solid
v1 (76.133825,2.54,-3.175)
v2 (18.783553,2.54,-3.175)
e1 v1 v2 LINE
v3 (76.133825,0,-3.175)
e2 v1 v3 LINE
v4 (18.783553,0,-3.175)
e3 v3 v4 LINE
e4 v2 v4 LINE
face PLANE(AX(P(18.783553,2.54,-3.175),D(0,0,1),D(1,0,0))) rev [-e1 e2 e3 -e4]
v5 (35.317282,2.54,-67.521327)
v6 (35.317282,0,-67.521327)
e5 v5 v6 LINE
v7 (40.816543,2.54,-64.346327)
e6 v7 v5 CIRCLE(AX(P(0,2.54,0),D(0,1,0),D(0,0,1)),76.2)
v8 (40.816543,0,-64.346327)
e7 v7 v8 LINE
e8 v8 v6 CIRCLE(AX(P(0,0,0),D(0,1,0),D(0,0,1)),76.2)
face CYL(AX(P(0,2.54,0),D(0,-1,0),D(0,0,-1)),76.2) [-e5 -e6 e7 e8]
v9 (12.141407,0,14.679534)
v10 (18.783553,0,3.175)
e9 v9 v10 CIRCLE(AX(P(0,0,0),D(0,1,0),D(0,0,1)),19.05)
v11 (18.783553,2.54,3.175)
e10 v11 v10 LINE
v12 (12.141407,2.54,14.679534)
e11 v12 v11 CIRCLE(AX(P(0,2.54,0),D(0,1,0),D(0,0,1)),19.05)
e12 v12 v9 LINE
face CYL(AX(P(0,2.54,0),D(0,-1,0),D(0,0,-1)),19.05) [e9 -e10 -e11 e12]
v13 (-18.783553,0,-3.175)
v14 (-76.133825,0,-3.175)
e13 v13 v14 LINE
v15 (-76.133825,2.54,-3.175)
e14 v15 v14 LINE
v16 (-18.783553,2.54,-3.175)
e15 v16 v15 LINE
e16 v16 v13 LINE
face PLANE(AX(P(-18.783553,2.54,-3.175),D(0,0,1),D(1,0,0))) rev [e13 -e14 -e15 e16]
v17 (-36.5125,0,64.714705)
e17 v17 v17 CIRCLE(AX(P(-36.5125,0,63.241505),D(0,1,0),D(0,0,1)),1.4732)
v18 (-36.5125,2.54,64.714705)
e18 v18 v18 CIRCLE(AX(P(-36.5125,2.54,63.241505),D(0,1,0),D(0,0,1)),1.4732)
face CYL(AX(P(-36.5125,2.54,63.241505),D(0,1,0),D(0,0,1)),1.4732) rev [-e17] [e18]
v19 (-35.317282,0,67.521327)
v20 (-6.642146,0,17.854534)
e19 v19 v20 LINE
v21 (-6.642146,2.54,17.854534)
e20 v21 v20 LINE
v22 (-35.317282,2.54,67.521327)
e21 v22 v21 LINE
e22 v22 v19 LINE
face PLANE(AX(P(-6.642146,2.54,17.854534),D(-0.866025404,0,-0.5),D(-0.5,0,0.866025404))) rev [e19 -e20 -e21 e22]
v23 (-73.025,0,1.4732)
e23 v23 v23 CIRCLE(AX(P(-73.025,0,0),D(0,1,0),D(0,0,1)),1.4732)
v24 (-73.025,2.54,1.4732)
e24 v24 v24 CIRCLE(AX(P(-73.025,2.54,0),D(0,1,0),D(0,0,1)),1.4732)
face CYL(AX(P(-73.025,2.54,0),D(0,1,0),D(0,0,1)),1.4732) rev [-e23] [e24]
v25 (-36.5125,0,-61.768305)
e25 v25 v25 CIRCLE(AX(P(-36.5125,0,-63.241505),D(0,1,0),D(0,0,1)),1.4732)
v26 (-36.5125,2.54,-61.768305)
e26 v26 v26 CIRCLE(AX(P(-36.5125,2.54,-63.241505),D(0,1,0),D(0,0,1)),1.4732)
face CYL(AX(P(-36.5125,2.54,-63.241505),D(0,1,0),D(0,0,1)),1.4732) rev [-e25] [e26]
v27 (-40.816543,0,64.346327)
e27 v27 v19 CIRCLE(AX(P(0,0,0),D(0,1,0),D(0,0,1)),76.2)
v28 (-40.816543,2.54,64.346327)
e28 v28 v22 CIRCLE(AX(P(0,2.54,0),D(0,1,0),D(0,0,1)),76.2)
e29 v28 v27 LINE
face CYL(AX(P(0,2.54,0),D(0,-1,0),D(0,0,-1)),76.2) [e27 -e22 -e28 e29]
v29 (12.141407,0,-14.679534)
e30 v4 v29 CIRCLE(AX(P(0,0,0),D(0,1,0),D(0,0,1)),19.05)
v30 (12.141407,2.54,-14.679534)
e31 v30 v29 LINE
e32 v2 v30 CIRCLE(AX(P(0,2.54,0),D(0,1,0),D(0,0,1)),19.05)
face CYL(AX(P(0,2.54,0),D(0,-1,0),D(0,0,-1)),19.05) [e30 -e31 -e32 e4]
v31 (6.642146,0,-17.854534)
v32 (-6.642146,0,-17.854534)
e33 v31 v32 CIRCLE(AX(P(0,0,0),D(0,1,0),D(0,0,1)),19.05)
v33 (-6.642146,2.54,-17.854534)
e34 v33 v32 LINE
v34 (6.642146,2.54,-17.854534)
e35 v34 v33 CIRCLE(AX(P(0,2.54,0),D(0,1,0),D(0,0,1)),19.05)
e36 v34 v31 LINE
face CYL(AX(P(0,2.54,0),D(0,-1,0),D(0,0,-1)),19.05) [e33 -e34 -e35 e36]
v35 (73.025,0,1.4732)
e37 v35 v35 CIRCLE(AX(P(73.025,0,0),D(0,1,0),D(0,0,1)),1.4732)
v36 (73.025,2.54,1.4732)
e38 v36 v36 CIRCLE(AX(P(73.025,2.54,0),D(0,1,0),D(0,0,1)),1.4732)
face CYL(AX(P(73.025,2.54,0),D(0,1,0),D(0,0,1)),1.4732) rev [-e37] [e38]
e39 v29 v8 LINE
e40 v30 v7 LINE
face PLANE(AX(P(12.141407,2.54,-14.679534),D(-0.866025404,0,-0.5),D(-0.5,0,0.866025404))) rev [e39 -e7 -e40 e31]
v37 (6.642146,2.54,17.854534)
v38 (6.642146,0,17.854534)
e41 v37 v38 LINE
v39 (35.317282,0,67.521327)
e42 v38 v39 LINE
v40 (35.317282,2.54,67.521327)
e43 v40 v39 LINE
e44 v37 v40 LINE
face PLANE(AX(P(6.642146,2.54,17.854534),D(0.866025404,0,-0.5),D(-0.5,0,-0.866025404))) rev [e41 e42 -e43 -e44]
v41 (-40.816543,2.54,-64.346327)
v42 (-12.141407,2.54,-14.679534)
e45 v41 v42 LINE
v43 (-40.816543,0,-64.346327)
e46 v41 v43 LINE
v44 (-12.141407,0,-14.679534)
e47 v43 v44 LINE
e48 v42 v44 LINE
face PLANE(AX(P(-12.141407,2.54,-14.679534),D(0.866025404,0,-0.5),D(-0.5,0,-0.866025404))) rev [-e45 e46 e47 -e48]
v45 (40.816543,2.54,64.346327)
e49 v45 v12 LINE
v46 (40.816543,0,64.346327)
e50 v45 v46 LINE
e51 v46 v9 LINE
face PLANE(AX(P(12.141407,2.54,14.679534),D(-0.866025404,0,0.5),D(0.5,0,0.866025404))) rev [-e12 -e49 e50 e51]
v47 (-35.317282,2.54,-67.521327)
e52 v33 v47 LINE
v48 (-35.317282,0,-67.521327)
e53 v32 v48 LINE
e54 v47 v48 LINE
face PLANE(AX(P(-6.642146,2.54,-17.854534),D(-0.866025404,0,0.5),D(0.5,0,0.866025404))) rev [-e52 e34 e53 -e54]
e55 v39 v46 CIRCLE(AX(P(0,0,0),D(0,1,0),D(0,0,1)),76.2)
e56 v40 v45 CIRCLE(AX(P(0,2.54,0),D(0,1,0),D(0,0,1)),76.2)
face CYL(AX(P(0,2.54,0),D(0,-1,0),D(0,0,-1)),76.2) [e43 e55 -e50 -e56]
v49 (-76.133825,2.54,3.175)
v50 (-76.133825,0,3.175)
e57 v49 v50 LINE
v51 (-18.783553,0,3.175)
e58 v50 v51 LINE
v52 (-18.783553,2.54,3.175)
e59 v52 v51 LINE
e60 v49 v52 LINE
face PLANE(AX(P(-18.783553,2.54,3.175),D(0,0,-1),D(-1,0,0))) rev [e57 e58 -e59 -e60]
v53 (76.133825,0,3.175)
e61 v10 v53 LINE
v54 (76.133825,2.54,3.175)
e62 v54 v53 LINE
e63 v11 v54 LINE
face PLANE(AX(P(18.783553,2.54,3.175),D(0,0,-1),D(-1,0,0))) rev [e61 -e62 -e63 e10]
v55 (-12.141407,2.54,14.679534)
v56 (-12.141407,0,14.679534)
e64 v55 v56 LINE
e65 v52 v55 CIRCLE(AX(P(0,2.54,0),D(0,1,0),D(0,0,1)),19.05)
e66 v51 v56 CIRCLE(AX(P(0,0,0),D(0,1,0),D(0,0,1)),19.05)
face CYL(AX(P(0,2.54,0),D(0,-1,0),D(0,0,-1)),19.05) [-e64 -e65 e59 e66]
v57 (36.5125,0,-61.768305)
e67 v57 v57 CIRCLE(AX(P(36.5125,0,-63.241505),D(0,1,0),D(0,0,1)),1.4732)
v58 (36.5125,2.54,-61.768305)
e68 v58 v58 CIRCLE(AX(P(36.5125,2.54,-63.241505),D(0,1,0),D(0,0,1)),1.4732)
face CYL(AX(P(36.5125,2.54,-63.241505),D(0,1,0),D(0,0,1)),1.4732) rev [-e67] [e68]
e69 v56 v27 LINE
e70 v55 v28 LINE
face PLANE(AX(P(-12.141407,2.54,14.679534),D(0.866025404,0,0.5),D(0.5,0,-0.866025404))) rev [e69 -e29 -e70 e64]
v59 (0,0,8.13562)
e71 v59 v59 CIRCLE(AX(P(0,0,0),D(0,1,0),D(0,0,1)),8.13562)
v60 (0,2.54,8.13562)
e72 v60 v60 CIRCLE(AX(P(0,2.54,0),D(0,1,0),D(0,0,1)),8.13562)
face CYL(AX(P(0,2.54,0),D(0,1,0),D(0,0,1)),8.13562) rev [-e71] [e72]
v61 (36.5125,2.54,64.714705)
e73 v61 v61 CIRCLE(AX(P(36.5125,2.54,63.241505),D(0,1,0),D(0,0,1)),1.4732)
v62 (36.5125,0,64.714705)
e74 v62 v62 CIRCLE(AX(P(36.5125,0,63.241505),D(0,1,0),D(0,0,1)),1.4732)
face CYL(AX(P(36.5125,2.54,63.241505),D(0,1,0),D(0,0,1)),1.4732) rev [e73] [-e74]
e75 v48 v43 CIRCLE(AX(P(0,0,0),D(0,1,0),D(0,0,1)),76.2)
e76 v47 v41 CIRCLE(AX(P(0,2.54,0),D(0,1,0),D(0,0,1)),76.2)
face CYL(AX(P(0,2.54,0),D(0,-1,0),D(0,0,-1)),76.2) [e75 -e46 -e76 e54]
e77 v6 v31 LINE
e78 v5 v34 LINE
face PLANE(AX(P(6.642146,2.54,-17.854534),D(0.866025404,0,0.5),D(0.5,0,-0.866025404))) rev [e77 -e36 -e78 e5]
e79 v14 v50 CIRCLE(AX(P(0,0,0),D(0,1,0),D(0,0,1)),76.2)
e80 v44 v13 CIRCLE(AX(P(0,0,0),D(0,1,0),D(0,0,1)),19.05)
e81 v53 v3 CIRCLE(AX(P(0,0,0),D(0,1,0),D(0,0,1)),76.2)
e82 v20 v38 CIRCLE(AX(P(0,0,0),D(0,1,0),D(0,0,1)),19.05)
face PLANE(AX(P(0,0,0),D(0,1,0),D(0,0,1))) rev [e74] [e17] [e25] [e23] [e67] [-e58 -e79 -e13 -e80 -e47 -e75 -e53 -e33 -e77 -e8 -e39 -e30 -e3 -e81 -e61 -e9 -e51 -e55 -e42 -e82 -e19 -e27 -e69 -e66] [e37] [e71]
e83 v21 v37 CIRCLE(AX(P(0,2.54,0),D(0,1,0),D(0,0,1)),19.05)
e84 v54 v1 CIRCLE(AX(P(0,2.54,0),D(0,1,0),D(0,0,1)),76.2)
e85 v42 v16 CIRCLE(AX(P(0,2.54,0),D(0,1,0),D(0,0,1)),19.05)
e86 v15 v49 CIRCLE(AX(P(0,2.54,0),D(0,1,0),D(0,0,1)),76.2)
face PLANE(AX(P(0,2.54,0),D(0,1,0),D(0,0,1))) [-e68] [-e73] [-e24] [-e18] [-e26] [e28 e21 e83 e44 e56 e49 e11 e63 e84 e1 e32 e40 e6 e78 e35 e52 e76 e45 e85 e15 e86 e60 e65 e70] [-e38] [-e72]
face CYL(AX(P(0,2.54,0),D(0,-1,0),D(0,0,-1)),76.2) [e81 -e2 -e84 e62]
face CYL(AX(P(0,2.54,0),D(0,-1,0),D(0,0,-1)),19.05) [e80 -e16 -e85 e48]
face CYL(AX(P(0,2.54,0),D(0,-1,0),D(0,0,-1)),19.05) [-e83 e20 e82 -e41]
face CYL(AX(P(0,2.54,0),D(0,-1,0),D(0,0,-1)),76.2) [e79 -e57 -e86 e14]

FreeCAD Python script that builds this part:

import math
import FreeCAD as App
import Part
import Sketcher

V = App.Vector
Q = App.Units.Quantity

doc = App.newDocument("Part")
body = doc.addObject("PartDesign::Body", "Body")

# Sketch on XZ plane
sketch1 = body.newObject("Sketcher::SketchObject", "Sketch")
sketch1.AttachmentSupport = (doc.getObject("XZ_Plane"), [""])
sketch1.MapMode = "FlatFace"
sketch1.addGeometry(Part.LineSegment(V(76, -3, 0), V(19, -3, 0)), False)
sketch1.addGeometry(Part.ArcOfCircle(Part.Circle(V(0, 0, 0), V(0, 0, 1), 19), math.radians(-50), math.radians(-10)), False)
sketch1.addGeometry(Part.LineSegment(V(12, -15, 0), V(41, -64, 0)), False)
sketch1.addGeometry(Part.ArcOfCircle(Part.Circle(V(0, 0, 0), V(0, 0, 1), 76), math.radians(-62.39), math.radians(-57.61)), False)
sketch1.addGeometry(Part.LineSegment(V(35, -68, 0), V(7, -18, 0)), False)
sketch1.addGeometry(Part.ArcOfCircle(Part.Circle(V(0, 0, 0), V(0, 0, 1), 19), math.radians(-110), math.radians(-70)), False)
sketch1.addGeometry(Part.LineSegment(V(-7, -18, 0), V(-35, -68, 0)), False)
sketch1.addGeometry(Part.ArcOfCircle(Part.Circle(V(0, 0, 0), V(0, 0, 1), 76), math.radians(-122.39), math.radians(-117.61)), False)
sketch1.addGeometry(Part.LineSegment(V(-41, -64, 0), V(-12, -15, 0)), False)
sketch1.addGeometry(Part.ArcOfCircle(Part.Circle(V(0, 0, 0), V(0, 0, 1), 19), math.radians(-170), math.radians(-130)), False)
sketch1.addGeometry(Part.LineSegment(V(-19, -3, 0), V(-76, -3, 0)), False)
sketch1.addGeometry(Part.ArcOfCircle(Part.Circle(V(0, 0, 0), V(0, 0, 1), 76), math.radians(177.61), math.radians(182.39)), False)
sketch1.addGeometry(Part.LineSegment(V(-76, 3, 0), V(-19, 3, 0)), False)
sketch1.addGeometry(Part.ArcOfCircle(Part.Circle(V(0, 0, 0), V(0, 0, 1), 19), math.radians(130), math.radians(170)), False)
sketch1.addGeometry(Part.LineSegment(V(-12, 15, 0), V(-41, 64, 0)), False)
sketch1.addGeometry(Part.ArcOfCircle(Part.Circle(V(0, 0, 0), V(0, 0, 1), 76), math.radians(117.61), math.radians(122.39)), False)
sketch1.addGeometry(Part.LineSegment(V(-35, 68, 0), V(-7, 18, 0)), False)
sketch1.addGeometry(Part.ArcOfCircle(Part.Circle(V(0, 0, 0), V(0, 0, 1), 19), math.radians(70), math.radians(110)), False)
sketch1.addGeometry(Part.LineSegment(V(7, 18, 0), V(35, 68, 0)), False)
sketch1.addGeometry(Part.ArcOfCircle(Part.Circle(V(0, 0, 0), V(0, 0, 1), 76), math.radians(57.61), math.radians(62.39)), False)
sketch1.addGeometry(Part.LineSegment(V(41, 64, 0), V(12, 15, 0)), False)
sketch1.addGeometry(Part.ArcOfCircle(Part.Circle(V(0, 0, 0), V(0, 0, 1), 19), math.radians(10), math.radians(50)), False)
sketch1.addGeometry(Part.LineSegment(V(19, 3, 0), V(76, 3, 0)), False)
sketch1.addGeometry(Part.ArcOfCircle(Part.Circle(V(0, 0, 0), V(0, 0, 1), 76), math.radians(-2.39), math.radians(2.39)), False)
sketch1.addConstraint(Sketcher.Constraint("Coincident", 0, 2, 1, 2))
sketch1.addConstraint(Sketcher.Constraint("Coincident", 1, 1, 2, 1))
sketch1.addConstraint(Sketcher.Constraint("Coincident", 2, 2, 3, 2))
sketch1.addConstraint(Sketcher.Constraint("Coincident", 3, 1, 4, 1))
sketch1.addConstraint(Sketcher.Constraint("Coincident", 4, 2, 5, 2))
sketch1.addConstraint(Sketcher.Constraint("Coincident", 5, 1, 6, 1))
sketch1.addConstraint(Sketcher.Constraint("Coincident", 6, 2, 7, 2))
sketch1.addConstraint(Sketcher.Constraint("Coincident", 7, 1, 8, 1))
sketch1.addConstraint(Sketcher.Constraint("Coincident", 8, 2, 9, 2))
sketch1.addConstraint(Sketcher.Constraint("Coincident", 9, 1, 10, 1))
sketch1.addConstraint(Sketcher.Constraint("Coincident", 10, 2, 11, 2))
sketch1.addConstraint(Sketcher.Constraint("Coincident", 11, 1, 12, 1))
sketch1.addConstraint(Sketcher.Constraint("Coincident", 12, 2, 13, 2))
sketch1.addConstraint(Sketcher.Constraint("Coincident", 13, 1, 14, 1))
sketch1.addConstraint(Sketcher.Constraint("Coincident", 14, 2, 15, 2))
sketch1.addConstraint(Sketcher.Constraint("Coincident", 15, 1, 16, 1))
sketch1.addConstraint(Sketcher.Constraint("Coincident", 16, 2, 17, 2))
sketch1.addConstraint(Sketcher.Constraint("Coincident", 17, 1, 18, 1))
sketch1.addConstraint(Sketcher.Constraint("Coincident", 18, 2, 19, 2))
sketch1.addConstraint(Sketcher.Constraint("Coincident", 19, 1, 20, 1))
sketch1.addConstraint(Sketcher.Constraint("Coincident", 20, 2, 21, 2))
sketch1.addConstraint(Sketcher.Constraint("Coincident", 21, 1, 22, 1))
sketch1.addConstraint(Sketcher.Constraint("Coincident", 22, 2, 23, 2))
sketch1.addConstraint(Sketcher.Constraint("Coincident", 23, 1, 0, 1))
sketch1.addConstraint(Sketcher.Constraint("Horizontal", 0))
sketch1.addConstraint(Sketcher.Constraint("Horizontal", 10))
sketch1.addConstraint(Sketcher.Constraint("Horizontal", 12))
sketch1.addConstraint(Sketcher.Constraint("Horizontal", 22))
sketch1.addConstraint(Sketcher.Constraint("Coincident", 1, 3, -1, 1))
sketch1.addConstraint(Sketcher.Constraint("Coincident", 3, 3, -1, 1))
sketch1.addConstraint(Sketcher.Constraint("Coincident", 5, 3, -1, 1))
sketch1.addConstraint(Sketcher.Constraint("Coincident", 7, 3, -1, 1))
sketch1.addConstraint(Sketcher.Constraint("Coincident", 9, 3, -1, 1))
sketch1.addConstraint(Sketcher.Constraint("Coincident", 11, 3, -1, 1))
sketch1.addConstraint(Sketcher.Constraint("Coincident", 13, 3, -1, 1))
sketch1.addConstraint(Sketcher.Constraint("Coincident", 15, 3, -1, 1))
sketch1.addConstraint(Sketcher.Constraint("Coincident", 17, 3, -1, 1))
sketch1.addConstraint(Sketcher.Constraint("Coincident", 19, 3, -1, 1))
sketch1.addConstraint(Sketcher.Constraint("Coincident", 21, 3, -1, 1))
sketch1.addConstraint(Sketcher.Constraint("Coincident", 23, 3, -1, 1))
sketch1.addConstraint(Sketcher.Constraint("Equal", 1, 5))
sketch1.addConstraint(Sketcher.Constraint("Equal", 3, 7))
sketch1.addConstraint(Sketcher.Constraint("Equal", 5, 9))
sketch1.addConstraint(Sketcher.Constraint("Equal", 7, 11))
sketch1.addConstraint(Sketcher.Constraint("Equal", 9, 13))
sketch1.addConstraint(Sketcher.Constraint("Equal", 11, 15))
sketch1.addConstraint(Sketcher.Constraint("Equal", 13, 17))
sketch1.addConstraint(Sketcher.Constraint("Equal", 15, 19))
sketch1.addConstraint(Sketcher.Constraint("Equal", 17, 21))
sketch1.addConstraint(Sketcher.Constraint("Equal", 19, 23))
sketch1.addConstraint(Sketcher.Constraint("Parallel", 2, 4))
sketch1.addConstraint(Sketcher.Constraint("Parallel", 6, 8))
sketch1.addConstraint(Sketcher.Constraint("Parallel", 4, 14))
sketch1.addConstraint(Sketcher.Constraint("Parallel", 14, 16))
sketch1.addConstraint(Sketcher.Constraint("Parallel", 8, 18))
sketch1.addConstraint(Sketcher.Constraint("Parallel", 18, 20))
sketch1.addConstraint(Sketcher.Constraint("Horizontal", 4, 2, 5, 1))
sketch1.addConstraint(Sketcher.Constraint("Horizontal", 3, 1, 6, 2))
sketch1.addConstraint(Sketcher.Constraint("Horizontal", 2, 2, 7, 1))
sketch1.addConstraint(Sketcher.Constraint("Horizontal", 0, 2, 9, 1))
sketch1.addConstraint(Sketcher.Constraint("Horizontal", 16, 2, 17, 1))
sketch1.addConstraint(Sketcher.Constraint("Horizontal", 14, 2, 19, 1))
sketch1.addConstraint(Sketcher.Constraint("Horizontal", 12, 2, 21, 1))
sketch1.addConstraint(Sketcher.Constraint("Vertical", 10, 2, 11, 1))
sketch1.addConstraint(Sketcher.Constraint("Vertical", 8, 2, 13, 1))
sketch1.addConstraint(Sketcher.Constraint("Vertical", 6, 2, 15, 1))
sketch1.addConstraint(Sketcher.Constraint("Equal", 2, 4))
sketch1.addConstraint(Sketcher.Constraint("Radius", 3, Q("3 in")))
sketch1.addConstraint(Sketcher.Constraint("Radius", 1, Q("0.75 in")))
sketch1.addConstraint(Sketcher.Constraint("Angle", 2, Q("-60 deg")))
sketch1.addConstraint(Sketcher.Constraint("DistanceY", 10, 2, 11, 1, Q("0.25 in")))
sketch1.addConstraint(Sketcher.Constraint("DistanceY", 3, 1, 2, 2, Q("0.125 in")))
pad1 = body.newObject("PartDesign::Pad", "Pad")
pad1.Profile = sketch1
pad1.Length = Q("0.1 in")
pad1.Reversed = True

# Sketch on XZ plane
sketch2 = body.newObject("Sketcher::SketchObject", "Sketch001")
sketch2.AttachmentSupport = (doc.getObject("XZ_Plane"), [""])
sketch2.MapMode = "FlatFace"
sketch2.AttachmentOffset = App.Placement(V(0, 0, -0.1 * 25.4), App.Rotation())
sketch2.addGeometry(Part.Circle(V(0, 0, 0), V(0, 0, 1), 8), False)
sketch2.addConstraint(Sketcher.Constraint("Coincident", 0, 3, -1, 1))
sketch2.addConstraint(Sketcher.Constraint("Diameter", 0, Q("0.6406 in")))
doc.recompute()
hole = body.newObject("PartDesign::Hole", "Hole")
hole.Profile = sketch2
hole.ThreadType = "None"
hole.Diameter = Q("0.6406 in")
hole.DepthType = "Dimension"
hole.Depth = Q("1.51 in")
hole.DrillPoint = "Angled"
hole.DrillPointAngle = 118
hole.Reversed = True

# Sketch on XZ plane
sketch3 = body.newObject("Sketcher::SketchObject", "Sketch002")
sketch3.AttachmentSupport = (doc.getObject("XZ_Plane"), [""])
sketch3.MapMode = "FlatFace"
sketch3.AttachmentOffset = App.Placement(V(0, 0, -0.1 * 25.4), App.Rotation())
sketch3.addGeometry(Part.Circle(V(-73, 0, 0), V(0, 0, 1), 1.5), False)
sketch3.addGeometry(Part.Circle(V(-36.5, -63.2, 0), V(0, 0, 1), 1.5), False)
sketch3.addGeometry(Part.Circle(V(36.5, -63.2, 0), V(0, 0, 1), 1.5), False)
sketch3.addGeometry(Part.Circle(V(73, 0, 0), V(0, 0, 1), 1.5), False)
sketch3.addGeometry(Part.Circle(V(36.5, 63.2, 0), V(0, 0, 1), 1.5), False)
sketch3.addGeometry(Part.Circle(V(-36.5, 63.2, 0), V(0, 0, 1), 1.5), False)
sketch3.addConstraint(Sketcher.Constraint("Equal", 0, 1))
sketch3.addConstraint(Sketcher.Constraint("Equal", 1, 2))
sketch3.addConstraint(Sketcher.Constraint("Equal", 2, 3))
sketch3.addConstraint(Sketcher.Constraint("Equal", 3, 4))
sketch3.addConstraint(Sketcher.Constraint("Equal", 4, 5))
sketch3.addConstraint(Sketcher.Constraint("Symmetric", 0, 3, 3, 3, -1, 1))
sketch3.addConstraint(Sketcher.Constraint("Symmetric", 1, 3, 4, 3, -1, 1))
sketch3.addConstraint(Sketcher.Constraint("Symmetric", 2, 3, 5, 3, -1, 1))
sketch3.addConstraint(Sketcher.Constraint("Symmetric", 1, 3, 2, 3, -2))
sketch3.addConstraint(Sketcher.Constraint("PointOnObject", 0, 3, -1))
sketch3.addConstraint(Sketcher.Constraint("Diameter", 0, Q("0.116 in")))
sketch3.addConstraint(Sketcher.Constraint("DistanceX", 0, 3, 3, 3, Q("5.75 in")))
sketch3.addConstraint(Sketcher.Constraint("DistanceX", 1, 3, -1, 1, Q("1.4375 in")))
sketch3.addConstraint(Sketcher.Constraint("DistanceY", 2, 3, 4, 3, Q("126.48301 mm")))
doc.recompute()
hole2 = body.newObject("PartDesign::Hole", "Hole001")
hole2.Profile = sketch3
hole2.ThreadType = "None"
hole2.Diameter = Q("0.116 in")
hole2.DepthType = "Dimension"
hole2.Depth = Q("1.51 in")
hole2.DrillPoint = "Angled"
hole2.DrillPointAngle = 118
hole2.Reversed = True

doc.recompute()
